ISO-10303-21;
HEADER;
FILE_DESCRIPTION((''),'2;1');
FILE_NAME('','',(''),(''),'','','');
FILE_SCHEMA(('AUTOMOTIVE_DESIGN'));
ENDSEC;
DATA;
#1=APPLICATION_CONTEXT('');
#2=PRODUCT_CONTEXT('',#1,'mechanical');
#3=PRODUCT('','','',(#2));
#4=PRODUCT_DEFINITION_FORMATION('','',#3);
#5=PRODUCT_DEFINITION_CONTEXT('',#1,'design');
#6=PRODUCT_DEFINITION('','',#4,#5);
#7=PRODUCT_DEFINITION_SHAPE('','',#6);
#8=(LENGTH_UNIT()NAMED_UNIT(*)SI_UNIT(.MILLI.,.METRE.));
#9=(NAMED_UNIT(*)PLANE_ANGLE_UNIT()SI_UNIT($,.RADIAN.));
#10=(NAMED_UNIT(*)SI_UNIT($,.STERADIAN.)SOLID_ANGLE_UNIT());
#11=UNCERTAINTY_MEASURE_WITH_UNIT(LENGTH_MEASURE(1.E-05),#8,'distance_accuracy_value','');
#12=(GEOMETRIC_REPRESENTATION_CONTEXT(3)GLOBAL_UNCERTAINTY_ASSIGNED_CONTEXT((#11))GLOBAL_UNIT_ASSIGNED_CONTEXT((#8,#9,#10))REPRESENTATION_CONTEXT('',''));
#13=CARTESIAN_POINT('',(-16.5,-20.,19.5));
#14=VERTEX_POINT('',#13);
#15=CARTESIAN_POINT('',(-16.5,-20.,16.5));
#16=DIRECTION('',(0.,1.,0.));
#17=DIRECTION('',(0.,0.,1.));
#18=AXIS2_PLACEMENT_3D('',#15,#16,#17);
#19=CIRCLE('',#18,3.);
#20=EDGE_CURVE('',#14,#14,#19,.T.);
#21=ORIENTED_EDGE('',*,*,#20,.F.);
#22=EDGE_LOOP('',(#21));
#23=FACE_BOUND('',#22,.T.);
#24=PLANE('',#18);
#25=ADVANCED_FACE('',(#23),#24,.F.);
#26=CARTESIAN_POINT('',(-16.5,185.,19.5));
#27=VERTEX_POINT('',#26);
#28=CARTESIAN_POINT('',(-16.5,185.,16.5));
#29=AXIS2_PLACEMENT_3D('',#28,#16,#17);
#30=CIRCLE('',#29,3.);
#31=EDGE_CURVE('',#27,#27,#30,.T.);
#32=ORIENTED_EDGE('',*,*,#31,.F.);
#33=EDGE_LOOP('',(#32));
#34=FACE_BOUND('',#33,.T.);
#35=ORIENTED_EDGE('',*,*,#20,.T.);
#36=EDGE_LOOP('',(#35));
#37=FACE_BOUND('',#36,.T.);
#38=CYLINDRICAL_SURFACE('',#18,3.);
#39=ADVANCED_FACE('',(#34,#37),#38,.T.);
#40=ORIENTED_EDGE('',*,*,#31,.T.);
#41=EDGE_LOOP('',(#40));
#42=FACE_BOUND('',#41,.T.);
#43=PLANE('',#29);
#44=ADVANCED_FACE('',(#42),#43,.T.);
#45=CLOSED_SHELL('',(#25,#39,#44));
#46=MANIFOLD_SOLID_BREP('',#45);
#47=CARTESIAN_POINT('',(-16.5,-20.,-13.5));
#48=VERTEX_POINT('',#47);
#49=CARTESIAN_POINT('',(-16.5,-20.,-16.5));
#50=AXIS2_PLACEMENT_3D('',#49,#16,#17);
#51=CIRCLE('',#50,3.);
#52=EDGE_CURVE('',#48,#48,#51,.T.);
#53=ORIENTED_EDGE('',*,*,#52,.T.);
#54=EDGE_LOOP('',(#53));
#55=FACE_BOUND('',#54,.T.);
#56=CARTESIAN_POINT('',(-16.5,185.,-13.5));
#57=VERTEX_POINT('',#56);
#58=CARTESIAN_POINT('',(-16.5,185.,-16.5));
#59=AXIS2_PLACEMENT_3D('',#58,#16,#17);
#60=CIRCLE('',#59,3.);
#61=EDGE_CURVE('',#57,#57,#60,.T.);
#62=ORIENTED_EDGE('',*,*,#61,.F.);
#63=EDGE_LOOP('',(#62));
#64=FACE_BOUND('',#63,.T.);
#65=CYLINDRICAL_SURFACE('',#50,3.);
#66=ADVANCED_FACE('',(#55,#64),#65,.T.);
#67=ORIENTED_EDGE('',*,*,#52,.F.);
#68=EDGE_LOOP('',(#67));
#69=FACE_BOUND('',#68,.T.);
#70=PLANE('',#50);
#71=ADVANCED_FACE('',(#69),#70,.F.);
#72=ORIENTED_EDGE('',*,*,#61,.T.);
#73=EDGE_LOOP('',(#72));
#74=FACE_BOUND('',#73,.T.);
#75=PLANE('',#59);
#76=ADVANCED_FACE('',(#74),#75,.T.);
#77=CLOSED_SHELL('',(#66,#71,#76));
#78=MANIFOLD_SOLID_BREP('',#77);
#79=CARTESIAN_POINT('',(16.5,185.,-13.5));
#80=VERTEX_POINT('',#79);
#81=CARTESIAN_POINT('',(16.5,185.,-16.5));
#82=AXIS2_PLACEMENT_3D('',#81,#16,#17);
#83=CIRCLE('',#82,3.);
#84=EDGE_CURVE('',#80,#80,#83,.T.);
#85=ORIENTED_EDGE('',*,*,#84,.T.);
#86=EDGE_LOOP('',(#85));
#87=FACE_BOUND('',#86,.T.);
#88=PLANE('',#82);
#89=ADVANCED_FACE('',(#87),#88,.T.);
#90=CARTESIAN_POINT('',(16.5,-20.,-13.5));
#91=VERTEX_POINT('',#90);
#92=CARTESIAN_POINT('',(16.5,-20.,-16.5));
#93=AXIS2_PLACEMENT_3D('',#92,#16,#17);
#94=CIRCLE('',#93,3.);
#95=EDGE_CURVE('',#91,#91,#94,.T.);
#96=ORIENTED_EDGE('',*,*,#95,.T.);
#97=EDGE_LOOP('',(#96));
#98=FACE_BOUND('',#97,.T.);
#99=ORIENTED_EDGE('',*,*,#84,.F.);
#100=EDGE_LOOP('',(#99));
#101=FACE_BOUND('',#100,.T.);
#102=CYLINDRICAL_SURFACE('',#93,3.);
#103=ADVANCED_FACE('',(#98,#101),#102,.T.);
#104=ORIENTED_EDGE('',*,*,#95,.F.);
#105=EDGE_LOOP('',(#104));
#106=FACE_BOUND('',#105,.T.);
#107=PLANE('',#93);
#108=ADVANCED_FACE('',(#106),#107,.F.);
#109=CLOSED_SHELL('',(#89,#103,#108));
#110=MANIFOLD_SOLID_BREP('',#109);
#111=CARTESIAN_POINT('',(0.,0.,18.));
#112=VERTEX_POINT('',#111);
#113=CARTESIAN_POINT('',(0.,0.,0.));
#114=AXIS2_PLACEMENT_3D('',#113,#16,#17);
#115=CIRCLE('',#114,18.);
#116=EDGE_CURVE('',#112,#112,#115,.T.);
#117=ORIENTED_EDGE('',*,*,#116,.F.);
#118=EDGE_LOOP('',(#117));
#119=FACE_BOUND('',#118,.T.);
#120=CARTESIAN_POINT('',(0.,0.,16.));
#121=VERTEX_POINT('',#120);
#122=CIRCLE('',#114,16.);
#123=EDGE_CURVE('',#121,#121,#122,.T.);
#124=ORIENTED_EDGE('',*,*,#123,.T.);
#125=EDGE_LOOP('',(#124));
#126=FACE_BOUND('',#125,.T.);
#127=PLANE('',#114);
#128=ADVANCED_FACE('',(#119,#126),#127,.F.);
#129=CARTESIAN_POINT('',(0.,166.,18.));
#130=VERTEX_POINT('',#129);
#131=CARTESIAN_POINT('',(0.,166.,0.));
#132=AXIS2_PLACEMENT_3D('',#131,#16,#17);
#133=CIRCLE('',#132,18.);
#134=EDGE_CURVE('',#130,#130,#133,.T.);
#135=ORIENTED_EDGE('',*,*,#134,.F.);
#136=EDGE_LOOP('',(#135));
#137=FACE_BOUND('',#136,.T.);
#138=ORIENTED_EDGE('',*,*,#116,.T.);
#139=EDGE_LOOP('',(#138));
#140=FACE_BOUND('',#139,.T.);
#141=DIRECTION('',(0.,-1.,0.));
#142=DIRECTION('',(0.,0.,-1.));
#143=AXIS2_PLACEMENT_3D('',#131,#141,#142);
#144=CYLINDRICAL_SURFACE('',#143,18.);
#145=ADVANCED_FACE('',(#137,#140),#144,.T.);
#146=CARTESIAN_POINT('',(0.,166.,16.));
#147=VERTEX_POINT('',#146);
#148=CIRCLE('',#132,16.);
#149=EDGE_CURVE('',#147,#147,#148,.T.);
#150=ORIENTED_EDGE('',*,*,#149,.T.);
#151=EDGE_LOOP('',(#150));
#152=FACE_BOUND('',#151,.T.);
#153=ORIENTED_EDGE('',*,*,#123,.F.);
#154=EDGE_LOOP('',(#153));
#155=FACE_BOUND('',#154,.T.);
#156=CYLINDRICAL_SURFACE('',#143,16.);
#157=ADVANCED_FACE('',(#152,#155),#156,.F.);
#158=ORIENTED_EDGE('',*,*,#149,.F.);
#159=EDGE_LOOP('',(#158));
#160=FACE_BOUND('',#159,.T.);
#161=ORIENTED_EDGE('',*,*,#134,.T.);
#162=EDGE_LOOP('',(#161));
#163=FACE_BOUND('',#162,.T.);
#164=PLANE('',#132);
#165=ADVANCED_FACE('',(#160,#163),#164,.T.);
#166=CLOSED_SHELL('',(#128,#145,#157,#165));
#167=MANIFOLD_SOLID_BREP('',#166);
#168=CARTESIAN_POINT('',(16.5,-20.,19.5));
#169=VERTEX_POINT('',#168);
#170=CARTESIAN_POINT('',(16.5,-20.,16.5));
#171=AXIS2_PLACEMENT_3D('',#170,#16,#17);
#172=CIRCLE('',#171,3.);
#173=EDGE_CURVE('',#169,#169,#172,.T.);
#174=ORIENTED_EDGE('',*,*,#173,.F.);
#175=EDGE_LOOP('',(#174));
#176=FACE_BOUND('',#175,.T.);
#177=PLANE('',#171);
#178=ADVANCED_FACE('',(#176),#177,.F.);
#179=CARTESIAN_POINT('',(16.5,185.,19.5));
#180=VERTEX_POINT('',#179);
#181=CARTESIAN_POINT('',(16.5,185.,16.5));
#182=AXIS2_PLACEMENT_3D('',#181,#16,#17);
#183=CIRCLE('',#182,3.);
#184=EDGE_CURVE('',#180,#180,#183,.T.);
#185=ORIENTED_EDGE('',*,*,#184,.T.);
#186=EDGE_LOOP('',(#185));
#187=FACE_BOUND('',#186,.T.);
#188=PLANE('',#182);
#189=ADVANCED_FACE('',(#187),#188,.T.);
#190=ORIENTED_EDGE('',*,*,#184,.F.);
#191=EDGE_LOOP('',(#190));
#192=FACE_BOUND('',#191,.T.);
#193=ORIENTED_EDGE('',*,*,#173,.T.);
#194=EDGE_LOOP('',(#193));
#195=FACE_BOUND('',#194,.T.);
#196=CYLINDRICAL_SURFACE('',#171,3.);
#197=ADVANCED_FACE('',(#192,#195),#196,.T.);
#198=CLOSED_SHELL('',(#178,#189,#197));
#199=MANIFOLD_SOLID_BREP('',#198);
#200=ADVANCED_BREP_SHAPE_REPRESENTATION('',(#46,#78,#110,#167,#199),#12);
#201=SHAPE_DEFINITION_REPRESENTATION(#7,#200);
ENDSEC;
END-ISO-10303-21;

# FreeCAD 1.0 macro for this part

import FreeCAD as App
import Part
import Sketcher

V = App.Vector

doc = App.newDocument("Part")
body = doc.addObject("PartDesign::Body", "Body")

sketch1 = body.newObject("Sketcher::SketchObject", "Sketch")
sketch1.AttachmentSupport = (doc.getObject("XZ_Plane"), [""])
sketch1.MapMode = "FlatFace"
sketch1.addGeometry([
    Part.Circle(V(0, 0, 0), V(0, 0, 1), 18),
    Part.Circle(V(0, 0, 0), V(0, 0, 1), 16),
], False)
sketch1.addConstraint([
    Sketcher.Constraint("Coincident", 0, 3, -1, 1),
    Sketcher.Constraint("Coincident", 1, 3, -1, 1),
    Sketcher.Constraint("Diameter", 0, 36.0),
    Sketcher.Constraint("Diameter", 1, 32.0),
])
pad1 = body.newObject("PartDesign::Pad", "Pad")
pad1.Profile = sketch1
pad1.Length = 166
pad1.Reversed = True
body2 = doc.addObject("PartDesign::Body", "Body001")

sketch2 = body2.newObject("Sketcher::SketchObject", "Sketch001")
sketch2.AttachmentSupport = (doc.getObject("XZ_Plane001"), [""])
sketch2.MapMode = "FlatFace"
sketch2.addGeometry(Part.Circle(V(-16.5, -16.5, 0), V(0, 0, 1), 3), False)
sketch2.addConstraint([
    Sketcher.Constraint("Diameter", 0, 6.0),
    Sketcher.Constraint("DistanceX", 0, 3, -1, 1, 16.5),
    Sketcher.Constraint("DistanceY", 0, 3, -1, 1, 16.5),
])
pad2 = body2.newObject("PartDesign::Pad", "Pad001")
pad2.Profile = sketch2
pad2.Type = "TwoLengths"
pad2.Length = 185
pad2.Length2 = 20
pad2.Reversed = True
body3 = doc.addObject("PartDesign::Body", "Body002")

sketch3 = body3.newObject("Sketcher::SketchObject", "Sketch002")
sketch3.AttachmentSupport = (doc.getObject("XZ_Plane002"), [""])
sketch3.MapMode = "FlatFace"
sketch3.addGeometry(Part.Circle(V(16.5, -16.5, 0), V(0, 0, 1), 3), False)
sketch3.addConstraint([
    Sketcher.Constraint("Diameter", 0, 6.0),
    Sketcher.Constraint("DistanceX", -1, 1, 0, 3, 16.5),
    Sketcher.Constraint("DistanceY", 0, 3, -1, 1, 16.5),
])
pad3 = body3.newObject("PartDesign::Pad", "Pad002")
pad3.Profile = sketch3
pad3.Type = "TwoLengths"
pad3.Length = 185
pad3.Length2 = 20
pad3.Reversed = True
body4 = doc.addObject("PartDesign::Body", "Body003")

sketch4 = body4.newObject("Sketcher::SketchObject", "Sketch003")
sketch4.AttachmentSupport = (doc.getObject("XZ_Plane003"), [""])
sketch4.MapMode = "FlatFace"
sketch4.addGeometry(Part.Circle(V(16.5, 16.5, 0), V(0, 0, 1), 3), False)
sketch4.addConstraint([
    Sketcher.Constraint("Diameter", 0, 6.0),
    Sketcher.Constraint("DistanceX", -1, 1, 0, 3, 16.5),
    Sketcher.Constraint("DistanceY", -1, 1, 0, 3, 16.5),
])
pad4 = body4.newObject("PartDesign::Pad", "Pad003")
pad4.Profile = sketch4
pad4.Type = "TwoLengths"
pad4.Length = 185
pad4.Length2 = 20
pad4.Reversed = True
body5 = doc.addObject("PartDesign::Body", "Body004")

sketch5 = body5.newObject("Sketcher::SketchObject", "Sketch004")
sketch5.AttachmentSupport = (doc.getObject("XZ_Plane004"), [""])
sketch5.MapMode = "FlatFace"
sketch5.addGeometry(Part.Circle(V(-16.5, 16.5, 0), V(0, 0, 1), 3), False)
sketch5.addConstraint([
    Sketcher.Constraint("Diameter", 0, 6.0),
    Sketcher.Constraint("DistanceX", 0, 3, -1, 1, 16.5),
    Sketcher.Constraint("DistanceY", -1, 1, 0, 3, 16.5),
])
pad5 = body5.newObject("PartDesign::Pad", "Pad004")
pad5.Profile = sketch5
pad5.Type = "TwoLengths"
pad5.Length = 185
pad5.Length2 = 20
pad5.Reversed = True

doc.recompute()
